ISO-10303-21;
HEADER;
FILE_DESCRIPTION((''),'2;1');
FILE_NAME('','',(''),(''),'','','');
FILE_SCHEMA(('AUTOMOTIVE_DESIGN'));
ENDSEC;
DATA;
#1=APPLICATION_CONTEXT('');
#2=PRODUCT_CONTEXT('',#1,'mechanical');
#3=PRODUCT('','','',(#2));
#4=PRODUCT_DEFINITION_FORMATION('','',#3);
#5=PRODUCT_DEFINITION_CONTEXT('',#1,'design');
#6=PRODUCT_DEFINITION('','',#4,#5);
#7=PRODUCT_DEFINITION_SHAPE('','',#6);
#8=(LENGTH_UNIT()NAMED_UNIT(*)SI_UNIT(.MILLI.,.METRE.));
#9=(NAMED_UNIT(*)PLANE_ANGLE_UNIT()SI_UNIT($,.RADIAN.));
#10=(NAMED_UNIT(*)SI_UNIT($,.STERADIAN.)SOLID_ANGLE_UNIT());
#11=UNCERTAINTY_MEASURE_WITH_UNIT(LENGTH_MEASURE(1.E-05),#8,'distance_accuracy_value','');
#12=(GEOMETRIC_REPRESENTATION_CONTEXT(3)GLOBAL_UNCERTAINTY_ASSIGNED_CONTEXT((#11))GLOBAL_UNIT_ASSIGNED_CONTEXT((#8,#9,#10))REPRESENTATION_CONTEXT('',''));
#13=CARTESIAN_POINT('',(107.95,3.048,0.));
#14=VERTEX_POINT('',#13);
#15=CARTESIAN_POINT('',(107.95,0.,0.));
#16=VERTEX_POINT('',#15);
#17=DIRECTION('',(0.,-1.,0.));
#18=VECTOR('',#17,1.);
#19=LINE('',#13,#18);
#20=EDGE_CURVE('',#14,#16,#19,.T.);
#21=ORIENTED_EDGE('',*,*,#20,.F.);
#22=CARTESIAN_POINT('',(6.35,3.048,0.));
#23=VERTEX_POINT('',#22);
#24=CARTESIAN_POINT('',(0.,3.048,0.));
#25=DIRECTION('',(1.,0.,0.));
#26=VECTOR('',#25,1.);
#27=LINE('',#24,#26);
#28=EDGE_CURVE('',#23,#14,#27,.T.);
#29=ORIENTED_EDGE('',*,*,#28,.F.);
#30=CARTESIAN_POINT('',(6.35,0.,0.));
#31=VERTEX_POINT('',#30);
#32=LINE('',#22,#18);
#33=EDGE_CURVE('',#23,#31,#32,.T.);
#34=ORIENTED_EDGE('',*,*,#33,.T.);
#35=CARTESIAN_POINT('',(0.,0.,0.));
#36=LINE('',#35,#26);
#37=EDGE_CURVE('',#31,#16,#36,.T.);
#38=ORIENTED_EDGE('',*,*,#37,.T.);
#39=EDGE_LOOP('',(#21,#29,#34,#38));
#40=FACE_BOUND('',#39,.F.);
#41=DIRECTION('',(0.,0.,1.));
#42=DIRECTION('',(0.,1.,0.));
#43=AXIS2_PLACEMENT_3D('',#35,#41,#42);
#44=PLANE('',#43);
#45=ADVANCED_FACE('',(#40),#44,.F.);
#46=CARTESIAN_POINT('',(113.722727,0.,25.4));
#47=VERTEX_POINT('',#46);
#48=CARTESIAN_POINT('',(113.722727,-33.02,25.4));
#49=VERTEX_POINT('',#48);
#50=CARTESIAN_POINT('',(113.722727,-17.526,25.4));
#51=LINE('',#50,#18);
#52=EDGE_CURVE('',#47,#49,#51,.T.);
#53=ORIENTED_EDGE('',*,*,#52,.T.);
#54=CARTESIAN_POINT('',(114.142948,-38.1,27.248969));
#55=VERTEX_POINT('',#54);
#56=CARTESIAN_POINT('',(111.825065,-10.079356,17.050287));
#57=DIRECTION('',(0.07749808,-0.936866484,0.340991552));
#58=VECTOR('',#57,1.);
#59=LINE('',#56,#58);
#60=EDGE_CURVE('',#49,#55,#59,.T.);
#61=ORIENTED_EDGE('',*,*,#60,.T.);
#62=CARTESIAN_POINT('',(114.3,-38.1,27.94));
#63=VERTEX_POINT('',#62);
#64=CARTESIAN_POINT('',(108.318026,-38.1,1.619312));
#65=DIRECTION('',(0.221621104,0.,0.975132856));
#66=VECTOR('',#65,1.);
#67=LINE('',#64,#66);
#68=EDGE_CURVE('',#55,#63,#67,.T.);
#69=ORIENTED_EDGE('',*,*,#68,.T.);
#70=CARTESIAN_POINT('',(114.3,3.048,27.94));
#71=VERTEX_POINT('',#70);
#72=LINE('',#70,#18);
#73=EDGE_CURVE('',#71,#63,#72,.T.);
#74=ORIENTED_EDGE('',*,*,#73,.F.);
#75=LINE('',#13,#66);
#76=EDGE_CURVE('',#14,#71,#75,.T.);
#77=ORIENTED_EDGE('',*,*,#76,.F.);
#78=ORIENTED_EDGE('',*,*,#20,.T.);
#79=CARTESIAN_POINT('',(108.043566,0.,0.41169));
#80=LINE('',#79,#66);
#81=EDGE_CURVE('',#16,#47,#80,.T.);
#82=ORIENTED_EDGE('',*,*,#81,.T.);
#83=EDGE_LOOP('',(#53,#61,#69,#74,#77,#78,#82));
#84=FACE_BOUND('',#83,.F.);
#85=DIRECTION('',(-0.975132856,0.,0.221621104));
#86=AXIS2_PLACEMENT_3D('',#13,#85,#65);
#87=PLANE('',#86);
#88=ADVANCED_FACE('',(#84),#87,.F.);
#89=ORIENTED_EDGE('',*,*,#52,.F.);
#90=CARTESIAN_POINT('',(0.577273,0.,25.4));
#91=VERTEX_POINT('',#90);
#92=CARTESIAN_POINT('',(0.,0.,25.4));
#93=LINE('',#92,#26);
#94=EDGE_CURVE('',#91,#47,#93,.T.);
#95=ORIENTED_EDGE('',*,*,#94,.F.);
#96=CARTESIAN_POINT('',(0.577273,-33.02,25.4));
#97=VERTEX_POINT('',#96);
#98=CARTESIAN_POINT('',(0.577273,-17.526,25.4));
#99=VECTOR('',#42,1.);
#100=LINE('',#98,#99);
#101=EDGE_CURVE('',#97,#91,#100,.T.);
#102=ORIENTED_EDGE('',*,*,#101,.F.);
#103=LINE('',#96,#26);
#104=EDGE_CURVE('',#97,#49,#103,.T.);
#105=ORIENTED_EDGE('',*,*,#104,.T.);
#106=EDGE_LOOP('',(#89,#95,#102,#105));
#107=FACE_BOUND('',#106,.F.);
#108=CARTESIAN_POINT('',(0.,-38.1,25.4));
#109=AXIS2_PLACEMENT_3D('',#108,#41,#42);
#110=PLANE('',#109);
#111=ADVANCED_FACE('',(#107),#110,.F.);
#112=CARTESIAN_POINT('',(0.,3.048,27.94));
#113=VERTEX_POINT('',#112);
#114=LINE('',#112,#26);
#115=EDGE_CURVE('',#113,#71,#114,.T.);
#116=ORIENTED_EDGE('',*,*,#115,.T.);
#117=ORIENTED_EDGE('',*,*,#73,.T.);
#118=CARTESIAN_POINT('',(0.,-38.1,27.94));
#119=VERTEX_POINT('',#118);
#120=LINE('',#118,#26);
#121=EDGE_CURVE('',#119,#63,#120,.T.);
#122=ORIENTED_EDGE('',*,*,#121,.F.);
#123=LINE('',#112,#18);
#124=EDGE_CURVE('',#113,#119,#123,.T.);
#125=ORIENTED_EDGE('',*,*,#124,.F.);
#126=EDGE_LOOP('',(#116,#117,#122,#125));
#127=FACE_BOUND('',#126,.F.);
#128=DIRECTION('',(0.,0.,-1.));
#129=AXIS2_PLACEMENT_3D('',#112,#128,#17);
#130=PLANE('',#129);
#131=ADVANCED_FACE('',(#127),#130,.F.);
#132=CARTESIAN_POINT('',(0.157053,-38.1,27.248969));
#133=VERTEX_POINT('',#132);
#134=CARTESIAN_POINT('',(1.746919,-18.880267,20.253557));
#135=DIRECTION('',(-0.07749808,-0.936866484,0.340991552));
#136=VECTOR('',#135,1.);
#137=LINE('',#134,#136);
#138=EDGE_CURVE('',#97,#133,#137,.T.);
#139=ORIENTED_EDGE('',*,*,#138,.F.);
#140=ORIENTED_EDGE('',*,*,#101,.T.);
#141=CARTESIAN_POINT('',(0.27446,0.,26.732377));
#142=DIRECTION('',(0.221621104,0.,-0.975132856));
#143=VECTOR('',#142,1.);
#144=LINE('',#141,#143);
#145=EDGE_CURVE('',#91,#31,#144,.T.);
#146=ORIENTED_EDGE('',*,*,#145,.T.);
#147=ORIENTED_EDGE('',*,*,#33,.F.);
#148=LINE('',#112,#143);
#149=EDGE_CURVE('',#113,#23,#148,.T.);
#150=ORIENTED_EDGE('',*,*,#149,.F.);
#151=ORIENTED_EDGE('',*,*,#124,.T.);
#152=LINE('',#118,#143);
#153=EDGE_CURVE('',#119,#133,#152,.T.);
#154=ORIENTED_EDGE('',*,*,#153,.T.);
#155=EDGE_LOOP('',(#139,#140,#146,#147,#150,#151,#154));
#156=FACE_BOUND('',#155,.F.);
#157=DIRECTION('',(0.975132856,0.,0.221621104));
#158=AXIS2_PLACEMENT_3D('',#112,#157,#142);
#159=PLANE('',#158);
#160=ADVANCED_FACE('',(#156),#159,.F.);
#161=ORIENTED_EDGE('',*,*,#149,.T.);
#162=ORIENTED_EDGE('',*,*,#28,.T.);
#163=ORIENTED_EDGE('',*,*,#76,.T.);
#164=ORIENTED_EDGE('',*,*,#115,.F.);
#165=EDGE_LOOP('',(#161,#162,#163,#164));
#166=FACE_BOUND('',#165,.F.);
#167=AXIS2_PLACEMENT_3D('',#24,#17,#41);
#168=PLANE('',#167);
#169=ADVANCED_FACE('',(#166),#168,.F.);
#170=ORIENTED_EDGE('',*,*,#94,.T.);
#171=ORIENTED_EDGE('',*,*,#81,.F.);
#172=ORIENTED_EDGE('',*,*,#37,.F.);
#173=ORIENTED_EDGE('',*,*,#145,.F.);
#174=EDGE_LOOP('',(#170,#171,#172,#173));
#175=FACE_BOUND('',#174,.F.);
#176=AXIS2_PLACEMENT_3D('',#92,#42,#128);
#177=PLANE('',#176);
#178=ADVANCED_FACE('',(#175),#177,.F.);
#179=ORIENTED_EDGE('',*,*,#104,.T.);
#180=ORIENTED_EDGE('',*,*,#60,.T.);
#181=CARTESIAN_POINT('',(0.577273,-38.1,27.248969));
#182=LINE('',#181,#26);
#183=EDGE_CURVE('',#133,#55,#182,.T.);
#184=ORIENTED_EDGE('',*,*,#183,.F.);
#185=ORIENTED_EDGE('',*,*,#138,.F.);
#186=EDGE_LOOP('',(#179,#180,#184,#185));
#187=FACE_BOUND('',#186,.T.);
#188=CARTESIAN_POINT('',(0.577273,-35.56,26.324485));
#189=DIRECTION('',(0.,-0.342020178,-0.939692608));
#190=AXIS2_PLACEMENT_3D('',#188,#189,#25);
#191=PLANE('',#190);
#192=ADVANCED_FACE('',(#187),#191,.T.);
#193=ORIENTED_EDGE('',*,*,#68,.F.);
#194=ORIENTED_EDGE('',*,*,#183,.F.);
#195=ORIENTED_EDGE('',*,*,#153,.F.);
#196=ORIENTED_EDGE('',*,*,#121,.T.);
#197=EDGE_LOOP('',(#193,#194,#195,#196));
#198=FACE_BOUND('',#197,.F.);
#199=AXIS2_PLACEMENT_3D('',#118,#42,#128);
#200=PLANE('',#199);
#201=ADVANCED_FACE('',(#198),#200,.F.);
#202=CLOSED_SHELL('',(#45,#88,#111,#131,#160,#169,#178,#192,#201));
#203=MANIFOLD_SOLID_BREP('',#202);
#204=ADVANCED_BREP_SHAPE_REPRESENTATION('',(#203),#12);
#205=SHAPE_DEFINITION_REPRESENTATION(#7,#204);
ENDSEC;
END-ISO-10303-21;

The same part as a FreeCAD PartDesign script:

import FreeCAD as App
import Part
import Sketcher
Q = App.Units.Quantity


def edges_at(feature, points):
    """Names of the edges that pass closest to the given points."""
    edges = feature.Shape.Edges
    near = lambda p: min(range(len(edges)), key=lambda i: edges[i].distToShape(Part.Vertex(*p))[0])
    return sorted({f"Edge{near(p) + 1}" for p in points})

doc = App.newDocument("Part")
body = doc.addObject("PartDesign::Body", "Body")

# Sketch on YZ plane
sketch1 = body.newObject("Sketcher::SketchObject", "Sketch")
sketch1.AttachmentSupport = (doc.getObject("YZ_Plane"), [""])
sketch1.MapMode = "FlatFace"
sketch1.addGeometry([
    Part.LineSegment(App.Vector(0, 25.4, 0), App.Vector(0, 0, 0)),  # 0
    Part.LineSegment(App.Vector(0, 0, 0), App.Vector(3, 0, 0)),  # 1
    Part.LineSegment(App.Vector(3, 0, 0), App.Vector(3, 27.9, 0)),  # 2
    Part.LineSegment(App.Vector(3, 27.9, 0), App.Vector(-38.1, 27.9, 0)),  # 3
    Part.LineSegment(App.Vector(-38.1, 27.9, 0), App.Vector(-38.1, 25.4, 0)),  # 4
    Part.LineSegment(App.Vector(-38.1, 25.4, 0), App.Vector(0, 25.4, 0)),  # 5
], False)
sketch1.addConstraint([
    Sketcher.Constraint("Coincident", 0, 2, 1, 1),
    Sketcher.Constraint("Coincident", 1, 2, 2, 1),
    Sketcher.Constraint("Coincident", 2, 2, 3, 1),
    Sketcher.Constraint("Coincident", 3, 2, 4, 1),
    Sketcher.Constraint("Coincident", 4, 2, 5, 1),
    Sketcher.Constraint("Coincident", 5, 2, 0, 1),
    Sketcher.Constraint("Vertical", 0),
    Sketcher.Constraint("Horizontal", 1),
    Sketcher.Constraint("Vertical", 2),
    Sketcher.Constraint("Horizontal", 3),
    Sketcher.Constraint("Vertical", 4),
    Sketcher.Constraint("Horizontal", 5),
    Sketcher.Constraint("Coincident", 0, 2, -1, 1),
    Sketcher.Constraint("DistanceY", 0, 2, 0, 1, Q("1 in")),
    Sketcher.Constraint("DistanceX", 5, 1, 5, 2, Q("1.5 in")),
    Sketcher.Constraint("DistanceY", 2, 1, 2, 2, Q("1.1 in")),
    Sketcher.Constraint("DistanceX", 1, 1, 1, 2, Q("0.12 in")),
])
pad1 = body.newObject("PartDesign::Pad", "Pad")
pad1.Profile = sketch1
pad1.Length = Q("4.5 in")

# Sketch on XZ plane
sketch2 = body.newObject("Sketcher::SketchObject", "Sketch001")
sketch2.AttachmentSupport = (doc.getObject("XZ_Plane"), [""])
sketch2.MapMode = "FlatFace"
sketch2.AttachmentOffset = App.Placement(App.Vector(0, 0, -0.12 * 25.4), App.Rotation())
sketch2.addGeometry([
    Part.LineSegment(App.Vector(108, 0, 0), App.Vector(114, 28, 0)),  # 0
    Part.LineSegment(App.Vector(114, 28, 0), App.Vector(114, 0, 0)),  # 1
    Part.LineSegment(App.Vector(114, 0, 0), App.Vector(108, 0, 0)),  # 2
    Part.LineSegment(App.Vector(0, 0, 0), App.Vector(0, 28, 0)),  # 3
    Part.LineSegment(App.Vector(0, 28, 0), App.Vector(6, 0, 0)),  # 4
    Part.LineSegment(App.Vector(6, 0, 0), App.Vector(0, 0, 0)),  # 5
], False)
sketch2.addConstraint([
    Sketcher.Constraint("Coincident", 0, 2, 1, 1),
    Sketcher.Constraint("Coincident", 1, 2, 2, 1),
    Sketcher.Constraint("Coincident", 2, 2, 0, 1),
    Sketcher.Constraint("Coincident", 3, 2, 4, 1),
    Sketcher.Constraint("Coincident", 4, 2, 5, 1),
    Sketcher.Constraint("Coincident", 5, 2, 3, 1),
    Sketcher.Constraint("Vertical", 1),
    Sketcher.Constraint("Horizontal", 2),
    Sketcher.Constraint("Vertical", 3),
    Sketcher.Constraint("Horizontal", 5),
    Sketcher.Constraint("Coincident", 5, 2, -1, 1),
    Sketcher.Constraint("PointOnObject", 1, 2, -1),
    Sketcher.Constraint("Horizontal", 0, 2, 3, 2),
    Sketcher.Constraint("Equal", 2, 5),
    Sketcher.Constraint("DistanceY", 1, 2, 1, 1, Q("1.1 in")),
    Sketcher.Constraint("DistanceX", 4, 2, 2, 2, Q("4 in")),
    Sketcher.Constraint("DistanceX", 2, 2, 2, 1, Q("0.25 in")),
])
pocket1 = body.newObject("PartDesign::Pocket", "Pocket")
pocket1.Profile = sketch2
pocket1.Type = "ThroughAll"
pocket1.Reversed = True
doc.recompute()

chamfer = body.newObject("PartDesign::Chamfer", "Chamfer")
chamfer.Base = (pocket1, edges_at(pocket1, [(57.15, -38.1, 25.4)]))
chamfer.ChamferType = "Two distances"
chamfer.Size = Q("0.2 in")
chamfer.Size2 = 1.848969

doc.recompute()
